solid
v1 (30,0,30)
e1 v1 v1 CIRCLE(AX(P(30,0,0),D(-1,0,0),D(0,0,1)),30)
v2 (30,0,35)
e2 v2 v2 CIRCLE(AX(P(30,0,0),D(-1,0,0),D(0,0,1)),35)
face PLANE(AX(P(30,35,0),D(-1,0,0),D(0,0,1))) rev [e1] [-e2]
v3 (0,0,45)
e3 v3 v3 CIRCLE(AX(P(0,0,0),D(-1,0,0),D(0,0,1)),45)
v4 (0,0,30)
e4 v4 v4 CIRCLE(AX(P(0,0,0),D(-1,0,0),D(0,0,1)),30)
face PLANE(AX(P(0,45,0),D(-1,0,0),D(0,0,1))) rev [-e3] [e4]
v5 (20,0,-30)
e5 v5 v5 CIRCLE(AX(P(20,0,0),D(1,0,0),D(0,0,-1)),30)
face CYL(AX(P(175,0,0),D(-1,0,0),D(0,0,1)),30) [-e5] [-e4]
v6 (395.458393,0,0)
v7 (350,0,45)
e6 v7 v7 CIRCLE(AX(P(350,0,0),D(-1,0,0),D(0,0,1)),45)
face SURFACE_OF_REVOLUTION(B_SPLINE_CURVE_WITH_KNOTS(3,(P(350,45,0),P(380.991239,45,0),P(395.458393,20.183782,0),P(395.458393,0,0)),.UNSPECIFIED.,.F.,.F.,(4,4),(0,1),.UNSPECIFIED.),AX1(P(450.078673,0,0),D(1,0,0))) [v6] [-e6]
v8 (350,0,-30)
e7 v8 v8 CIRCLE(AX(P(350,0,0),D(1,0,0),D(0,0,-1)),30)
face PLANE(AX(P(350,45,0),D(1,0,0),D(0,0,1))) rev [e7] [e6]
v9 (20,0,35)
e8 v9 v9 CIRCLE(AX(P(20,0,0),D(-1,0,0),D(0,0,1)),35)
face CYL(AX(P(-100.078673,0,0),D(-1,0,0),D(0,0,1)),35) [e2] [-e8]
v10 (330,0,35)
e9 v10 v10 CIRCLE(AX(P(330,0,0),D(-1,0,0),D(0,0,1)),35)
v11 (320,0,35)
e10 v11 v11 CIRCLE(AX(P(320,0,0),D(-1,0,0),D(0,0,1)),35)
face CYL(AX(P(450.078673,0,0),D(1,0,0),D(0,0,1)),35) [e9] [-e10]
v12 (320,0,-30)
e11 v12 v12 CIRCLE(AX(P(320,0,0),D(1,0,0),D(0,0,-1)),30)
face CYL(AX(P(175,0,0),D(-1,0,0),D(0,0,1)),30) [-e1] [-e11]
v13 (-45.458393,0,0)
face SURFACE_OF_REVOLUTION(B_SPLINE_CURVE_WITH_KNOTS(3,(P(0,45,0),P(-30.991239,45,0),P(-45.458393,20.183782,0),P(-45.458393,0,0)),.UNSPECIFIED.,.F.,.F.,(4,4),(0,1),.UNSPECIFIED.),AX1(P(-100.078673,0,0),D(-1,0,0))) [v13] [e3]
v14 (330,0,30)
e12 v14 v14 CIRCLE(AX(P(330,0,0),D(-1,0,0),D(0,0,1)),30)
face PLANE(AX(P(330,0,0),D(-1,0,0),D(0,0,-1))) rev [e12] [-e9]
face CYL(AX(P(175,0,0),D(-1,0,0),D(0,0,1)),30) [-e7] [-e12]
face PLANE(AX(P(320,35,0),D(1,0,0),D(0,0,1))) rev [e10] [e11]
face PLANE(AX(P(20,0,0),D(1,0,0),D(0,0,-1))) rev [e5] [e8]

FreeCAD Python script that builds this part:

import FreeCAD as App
import Part
import Sketcher

V = App.Vector
Q = App.Units.Quantity


def add_polygon(sketch, points):
    """Adds a closed chain of lines whose ends are joined by coincident constraints."""
    first, n = sketch.GeometryCount, len(points)
    for a, b in zip(points, points[1:] + points[:1]):
        sketch.addGeometry(Part.LineSegment(App.Vector(*a, 0), App.Vector(*b, 0)), False)
    for i in range(n):
        sketch.addConstraint(Sketcher.Constraint("Coincident", first + i, 2, first + (i + 1) % n, 1))

doc = App.newDocument("Part")
body = doc.addObject("PartDesign::Body", "Body")

# Sketch on YZ plane
sketch1 = body.newObject("Sketcher::SketchObject", "Sketch")
sketch1.AttachmentSupport = (doc.getObject("YZ_Plane"), [""])
sketch1.MapMode = "FlatFace"
sketch1.addGeometry(Part.Circle(V(0, 0, 0), V(0, 0, 1), 30), False)
sketch1.addConstraint([
    Sketcher.Constraint("Coincident", 0, 3, -1, 1),
    Sketcher.Constraint("Diameter", 0, Q("60 mm")),
])
pad1 = body.newObject("PartDesign::Pad", "Pad")
pad1.Profile = sketch1
pad1.Length = 175

# Sketch on XY plane
sketch2 = body.newObject("Sketcher::SketchObject", "Sketch001")
sketch2.AttachmentSupport = (doc.getObject("XY_Plane"), [""])
sketch2.MapMode = "FlatFace"
add_polygon(sketch2, [(20, 35), (20, 0), (30, 0), (30, 35)])  # lines 0-3
sketch2.addGeometry(Part.LineSegment(V(-45.458393, 0, 0), V(0, 0, 0)), False)  # 4
sketch2.addGeometry(Part.LineSegment(V(0, 0, 0), V(0, 45, 0)), False)  # 5
sketch2.addGeometry(Part.BSplineCurve([V(-45.458393, 0, 0), V(-45.458393, 20.183782, 0), V(-30.991239, 45, 0), V(0, 45, 0)], [4, 4], [0, 1], False, 3, [1, 1, 1, 1], False), False)  # 6
sketch2.addConstraint([
    Sketcher.Constraint("Block", 6),
    Sketcher.Constraint("Coincident", 4, 2, 5, 1),
    Sketcher.Constraint("Coincident", 5, 2, 6, 2),
    Sketcher.Constraint("Coincident", 6, 1, 4, 1),
    Sketcher.Constraint("Vertical", 0),
    Sketcher.Constraint("Horizontal", 1),
    Sketcher.Constraint("Vertical", 2),
    Sketcher.Constraint("Horizontal", 3),
    Sketcher.Constraint("Horizontal", 4),
    Sketcher.Constraint("Vertical", 5),
    Sketcher.Constraint("PointOnObject", 0, 2, -1),
    Sketcher.Constraint("DistanceX", 1, 1, 1, 2, Q("10 mm")),
    Sketcher.Constraint("DistanceY", 0, 2, 0, 1, Q("35 mm")),
    Sketcher.Constraint("DistanceX", -1, 1, 0, 2, Q("20 mm")),
])
revolution = body.newObject("PartDesign::Revolution", "Revolution")
revolution.Profile = sketch2
revolution.ReferenceAxis = (sketch2, ["H_Axis"])
revolution.Angle = 360
doc.recompute()

datumplane = body.newObject("PartDesign::Plane", "DatumPlane")
datumplane.AttachmentSupport = (doc.getObject("YZ_Plane"), [""])
datumplane.MapMode = "FlatFace"
datumplane.AttachmentOffset = App.Placement(V(0, 0, 175), App.Rotation())
mirrored = body.newObject("PartDesign::Mirrored", "Mirrored")
mirrored.Originals = [pad1, revolution]
mirrored.MirrorPlane = (datumplane, [""])
body.Tip = mirrored

doc.recompute()
